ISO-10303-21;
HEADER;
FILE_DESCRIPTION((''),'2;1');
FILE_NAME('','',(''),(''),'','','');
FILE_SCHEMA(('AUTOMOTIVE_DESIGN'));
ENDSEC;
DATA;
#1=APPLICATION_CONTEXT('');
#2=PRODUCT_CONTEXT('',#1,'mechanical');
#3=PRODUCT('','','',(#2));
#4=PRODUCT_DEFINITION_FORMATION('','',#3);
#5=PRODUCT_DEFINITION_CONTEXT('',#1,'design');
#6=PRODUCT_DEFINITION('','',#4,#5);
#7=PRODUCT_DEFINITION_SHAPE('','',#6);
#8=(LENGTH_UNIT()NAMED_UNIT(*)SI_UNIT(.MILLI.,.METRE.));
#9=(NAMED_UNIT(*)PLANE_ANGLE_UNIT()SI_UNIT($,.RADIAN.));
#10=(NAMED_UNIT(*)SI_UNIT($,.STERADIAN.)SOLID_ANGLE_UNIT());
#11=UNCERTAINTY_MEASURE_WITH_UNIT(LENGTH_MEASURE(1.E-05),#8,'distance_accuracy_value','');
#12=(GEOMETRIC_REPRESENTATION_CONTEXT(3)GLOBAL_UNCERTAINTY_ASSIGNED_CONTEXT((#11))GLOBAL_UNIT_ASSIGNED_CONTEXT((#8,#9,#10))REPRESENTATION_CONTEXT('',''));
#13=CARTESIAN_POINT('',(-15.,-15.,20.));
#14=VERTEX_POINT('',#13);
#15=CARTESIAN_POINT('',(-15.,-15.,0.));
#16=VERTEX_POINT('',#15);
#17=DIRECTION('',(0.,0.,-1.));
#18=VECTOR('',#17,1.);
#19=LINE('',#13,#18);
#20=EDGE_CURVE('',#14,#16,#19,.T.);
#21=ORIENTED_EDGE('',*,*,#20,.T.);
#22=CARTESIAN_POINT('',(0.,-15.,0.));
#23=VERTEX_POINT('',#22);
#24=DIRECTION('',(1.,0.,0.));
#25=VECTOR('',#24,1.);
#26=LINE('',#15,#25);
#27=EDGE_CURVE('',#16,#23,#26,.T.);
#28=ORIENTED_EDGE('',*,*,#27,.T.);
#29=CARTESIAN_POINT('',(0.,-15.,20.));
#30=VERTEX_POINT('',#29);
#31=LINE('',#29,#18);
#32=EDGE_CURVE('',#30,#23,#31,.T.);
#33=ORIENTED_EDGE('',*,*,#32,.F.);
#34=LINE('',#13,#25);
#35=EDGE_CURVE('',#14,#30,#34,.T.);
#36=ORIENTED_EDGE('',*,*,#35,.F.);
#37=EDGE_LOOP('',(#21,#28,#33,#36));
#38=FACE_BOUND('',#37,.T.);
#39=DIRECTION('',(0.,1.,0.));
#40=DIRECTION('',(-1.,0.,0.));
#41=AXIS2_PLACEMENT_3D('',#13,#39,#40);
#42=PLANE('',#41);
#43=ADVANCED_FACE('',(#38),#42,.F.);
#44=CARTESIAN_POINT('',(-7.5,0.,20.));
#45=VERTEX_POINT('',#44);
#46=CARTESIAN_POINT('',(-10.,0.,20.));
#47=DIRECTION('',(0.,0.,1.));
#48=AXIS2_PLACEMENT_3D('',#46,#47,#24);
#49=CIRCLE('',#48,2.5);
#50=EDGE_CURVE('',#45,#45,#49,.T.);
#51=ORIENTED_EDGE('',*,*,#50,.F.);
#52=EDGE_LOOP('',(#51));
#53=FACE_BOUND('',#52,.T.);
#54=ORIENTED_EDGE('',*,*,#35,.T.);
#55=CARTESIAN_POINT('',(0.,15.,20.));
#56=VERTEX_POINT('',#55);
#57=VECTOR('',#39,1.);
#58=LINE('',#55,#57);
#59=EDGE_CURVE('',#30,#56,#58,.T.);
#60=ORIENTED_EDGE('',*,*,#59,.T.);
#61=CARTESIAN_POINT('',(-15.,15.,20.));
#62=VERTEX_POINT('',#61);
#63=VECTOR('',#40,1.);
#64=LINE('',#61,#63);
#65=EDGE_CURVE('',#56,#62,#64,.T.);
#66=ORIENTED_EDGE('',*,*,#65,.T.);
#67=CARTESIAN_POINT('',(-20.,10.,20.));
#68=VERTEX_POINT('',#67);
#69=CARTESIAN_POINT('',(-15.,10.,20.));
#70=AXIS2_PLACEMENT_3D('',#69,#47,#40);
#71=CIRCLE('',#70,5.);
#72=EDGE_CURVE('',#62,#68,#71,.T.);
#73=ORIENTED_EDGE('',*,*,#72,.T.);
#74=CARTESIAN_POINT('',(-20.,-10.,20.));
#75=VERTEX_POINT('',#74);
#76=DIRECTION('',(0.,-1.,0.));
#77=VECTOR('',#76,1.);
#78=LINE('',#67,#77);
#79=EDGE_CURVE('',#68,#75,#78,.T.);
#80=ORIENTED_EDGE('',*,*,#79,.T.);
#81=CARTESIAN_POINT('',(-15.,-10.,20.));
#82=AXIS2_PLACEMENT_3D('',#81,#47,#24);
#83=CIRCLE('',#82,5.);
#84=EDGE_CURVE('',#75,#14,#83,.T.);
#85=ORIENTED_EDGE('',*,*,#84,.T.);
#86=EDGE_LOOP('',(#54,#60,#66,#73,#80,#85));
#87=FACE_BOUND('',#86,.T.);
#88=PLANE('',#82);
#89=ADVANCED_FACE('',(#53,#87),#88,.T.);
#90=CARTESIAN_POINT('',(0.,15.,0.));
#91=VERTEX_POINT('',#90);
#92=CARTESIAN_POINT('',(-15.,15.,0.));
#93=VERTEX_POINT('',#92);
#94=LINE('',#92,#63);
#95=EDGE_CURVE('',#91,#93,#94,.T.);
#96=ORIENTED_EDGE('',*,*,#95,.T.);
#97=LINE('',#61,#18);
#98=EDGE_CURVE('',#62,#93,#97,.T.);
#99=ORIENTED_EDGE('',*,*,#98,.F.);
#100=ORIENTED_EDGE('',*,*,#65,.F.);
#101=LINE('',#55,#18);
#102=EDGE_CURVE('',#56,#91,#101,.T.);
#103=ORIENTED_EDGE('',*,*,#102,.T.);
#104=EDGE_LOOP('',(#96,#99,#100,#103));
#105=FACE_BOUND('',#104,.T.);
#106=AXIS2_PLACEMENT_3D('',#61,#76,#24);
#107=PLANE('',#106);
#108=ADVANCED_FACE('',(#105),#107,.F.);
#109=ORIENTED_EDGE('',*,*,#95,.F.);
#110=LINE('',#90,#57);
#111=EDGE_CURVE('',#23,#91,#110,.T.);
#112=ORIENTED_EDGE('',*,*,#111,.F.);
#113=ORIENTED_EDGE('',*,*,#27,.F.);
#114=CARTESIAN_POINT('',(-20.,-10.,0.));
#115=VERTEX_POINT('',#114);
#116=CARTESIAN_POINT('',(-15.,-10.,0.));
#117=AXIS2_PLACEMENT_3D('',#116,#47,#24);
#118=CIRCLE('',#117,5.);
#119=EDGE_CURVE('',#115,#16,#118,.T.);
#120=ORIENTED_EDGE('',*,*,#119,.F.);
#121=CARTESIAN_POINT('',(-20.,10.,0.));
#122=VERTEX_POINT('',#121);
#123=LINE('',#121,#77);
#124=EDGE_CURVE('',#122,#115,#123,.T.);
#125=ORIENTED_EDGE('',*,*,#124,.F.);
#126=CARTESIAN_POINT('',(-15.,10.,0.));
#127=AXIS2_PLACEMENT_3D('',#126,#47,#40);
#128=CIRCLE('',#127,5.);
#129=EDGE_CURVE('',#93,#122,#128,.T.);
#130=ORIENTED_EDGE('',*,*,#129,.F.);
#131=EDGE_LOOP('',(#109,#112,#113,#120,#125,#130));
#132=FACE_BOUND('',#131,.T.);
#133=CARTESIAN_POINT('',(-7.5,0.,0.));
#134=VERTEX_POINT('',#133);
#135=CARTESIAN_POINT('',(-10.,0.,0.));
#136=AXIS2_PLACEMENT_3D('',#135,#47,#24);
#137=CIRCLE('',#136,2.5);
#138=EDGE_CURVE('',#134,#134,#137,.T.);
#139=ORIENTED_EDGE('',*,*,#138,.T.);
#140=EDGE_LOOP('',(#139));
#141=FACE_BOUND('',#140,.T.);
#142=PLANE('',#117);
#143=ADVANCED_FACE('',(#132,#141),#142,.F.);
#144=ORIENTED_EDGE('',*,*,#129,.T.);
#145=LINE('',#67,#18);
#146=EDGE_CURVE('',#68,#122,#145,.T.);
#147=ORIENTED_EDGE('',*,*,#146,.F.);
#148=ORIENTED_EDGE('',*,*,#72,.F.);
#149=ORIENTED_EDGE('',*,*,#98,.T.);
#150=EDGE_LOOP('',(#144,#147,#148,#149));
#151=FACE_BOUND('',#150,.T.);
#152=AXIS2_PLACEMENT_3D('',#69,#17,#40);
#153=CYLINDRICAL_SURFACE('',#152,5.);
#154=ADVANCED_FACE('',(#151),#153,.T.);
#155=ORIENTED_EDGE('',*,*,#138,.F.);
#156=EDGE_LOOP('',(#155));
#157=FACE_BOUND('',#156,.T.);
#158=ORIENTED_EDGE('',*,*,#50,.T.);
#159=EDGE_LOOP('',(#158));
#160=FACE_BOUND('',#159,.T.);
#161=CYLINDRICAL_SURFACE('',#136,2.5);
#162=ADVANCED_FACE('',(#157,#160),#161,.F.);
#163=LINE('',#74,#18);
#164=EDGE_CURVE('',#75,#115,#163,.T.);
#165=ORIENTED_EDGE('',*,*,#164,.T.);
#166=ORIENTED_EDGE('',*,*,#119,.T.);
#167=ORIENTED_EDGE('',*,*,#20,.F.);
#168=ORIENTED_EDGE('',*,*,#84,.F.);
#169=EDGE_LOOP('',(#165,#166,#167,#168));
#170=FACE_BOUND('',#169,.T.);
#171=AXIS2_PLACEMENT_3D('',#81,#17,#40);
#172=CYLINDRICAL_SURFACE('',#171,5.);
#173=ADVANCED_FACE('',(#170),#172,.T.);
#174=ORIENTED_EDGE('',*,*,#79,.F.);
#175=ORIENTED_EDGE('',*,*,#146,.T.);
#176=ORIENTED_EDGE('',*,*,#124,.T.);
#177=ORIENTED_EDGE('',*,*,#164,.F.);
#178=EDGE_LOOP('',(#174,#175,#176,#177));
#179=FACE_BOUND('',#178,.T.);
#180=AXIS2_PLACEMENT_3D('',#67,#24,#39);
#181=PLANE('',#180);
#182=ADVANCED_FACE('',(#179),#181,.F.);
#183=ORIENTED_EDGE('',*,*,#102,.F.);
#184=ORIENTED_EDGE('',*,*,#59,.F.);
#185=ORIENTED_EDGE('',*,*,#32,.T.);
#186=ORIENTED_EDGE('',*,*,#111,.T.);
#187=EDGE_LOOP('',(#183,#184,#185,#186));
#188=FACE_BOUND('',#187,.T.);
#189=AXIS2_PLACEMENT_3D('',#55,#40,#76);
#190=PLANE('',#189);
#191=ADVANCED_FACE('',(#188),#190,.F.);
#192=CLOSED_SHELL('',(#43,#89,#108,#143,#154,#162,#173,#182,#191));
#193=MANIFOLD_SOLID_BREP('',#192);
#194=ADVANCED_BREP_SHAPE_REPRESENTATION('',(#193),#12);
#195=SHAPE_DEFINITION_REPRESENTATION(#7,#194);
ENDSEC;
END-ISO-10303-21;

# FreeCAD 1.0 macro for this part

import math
import FreeCAD as App
import Part
import Sketcher
from FreeCAD import Vector

doc = App.newDocument("Part")
body = doc.addObject("PartDesign::Body", "Body")

# Sketch on XY plane
sketch1 = body.newObject("Sketcher::SketchObject", "Sketch")
sketch1.AttachmentSupport = (doc.getObject("XY_Plane"), [""])
sketch1.MapMode = "FlatFace"
sketch1.addGeometry(Part.LineSegment(Vector(0, 15, 0), Vector(-15, 15, 0)), False)
sketch1.addGeometry(Part.ArcOfCircle(Part.Circle(Vector(-15, 10, 0), Vector(0, 0, 1), 5), math.radians(90), math.radians(180)), False)
sketch1.addGeometry(Part.LineSegment(Vector(-20, 10, 0), Vector(-20, -10, 0)), False)
sketch1.addGeometry(Part.ArcOfCircle(Part.Circle(Vector(-15, -10, 0), Vector(0, 0, 1), 5), math.radians(180), math.radians(270)), False)
sketch1.addGeometry(Part.LineSegment(Vector(-15, -15, 0), Vector(0, -15, 0)), False)
sketch1.addGeometry(Part.LineSegment(Vector(0, -15, 0), Vector(0, 15, 0)), False)
sketch1.addConstraint(Sketcher.Constraint("Tangent", 0, 2, 1, 1))
sketch1.addConstraint(Sketcher.Constraint("Tangent", 1, 2, 2, 1))
sketch1.addConstraint(Sketcher.Constraint("Tangent", 2, 2, 3, 1))
sketch1.addConstraint(Sketcher.Constraint("Tangent", 3, 2, 4, 1))
sketch1.addConstraint(Sketcher.Constraint("Coincident", 4, 2, 5, 1))
sketch1.addConstraint(Sketcher.Constraint("Coincident", 5, 2, 0, 1))
sketch1.addConstraint(Sketcher.Constraint("Horizontal", 0))
sketch1.addConstraint(Sketcher.Constraint("Vertical", 2))
sketch1.addConstraint(Sketcher.Constraint("Horizontal", 4))
sketch1.addConstraint(Sketcher.Constraint("Vertical", 5))
sketch1.addConstraint(Sketcher.Constraint("Equal", 1, 3))
sketch1.addConstraint(Sketcher.Constraint("Symmetric", 4, 2, 5, 2, -1, 1))
sketch1.addConstraint(Sketcher.Constraint("Radius", 1, 5.0))
sketch1.addConstraint(Sketcher.Constraint("DistanceX", 0, 2, 0, 1, 15.0))
sketch1.addConstraint(Sketcher.Constraint("DistanceY", 2, 2, 2, 1, 20.0))
pad1 = body.newObject("PartDesign::Pad", "Pad")
pad1.Profile = sketch1
pad1.Length = 20

# Sketch on XY plane
sketch2 = body.newObject("Sketcher::SketchObject", "Sketch001")
sketch2.AttachmentSupport = (doc.getObject("XY_Plane"), [""])
sketch2.MapMode = "FlatFace"
sketch2.AttachmentOffset = App.Placement(Vector(0, 0, 20), App.Rotation())
sketch2.addGeometry(Part.Circle(Vector(-10, 0, 0), Vector(0, 0, 1), 2.5), False)
sketch2.addConstraint(Sketcher.Constraint("PointOnObject", 0, 3, -1))
sketch2.addConstraint(Sketcher.Constraint("Diameter", 0, 5.0))
sketch2.addConstraint(Sketcher.Constraint("DistanceX", 0, 3, -1, 1, 10.0))
pocket1 = body.newObject("PartDesign::Pocket", "Pocket")
pocket1.Profile = sketch2
pocket1.Type = "ThroughAll"
pocket1.Midplane = True

doc.recompute()
